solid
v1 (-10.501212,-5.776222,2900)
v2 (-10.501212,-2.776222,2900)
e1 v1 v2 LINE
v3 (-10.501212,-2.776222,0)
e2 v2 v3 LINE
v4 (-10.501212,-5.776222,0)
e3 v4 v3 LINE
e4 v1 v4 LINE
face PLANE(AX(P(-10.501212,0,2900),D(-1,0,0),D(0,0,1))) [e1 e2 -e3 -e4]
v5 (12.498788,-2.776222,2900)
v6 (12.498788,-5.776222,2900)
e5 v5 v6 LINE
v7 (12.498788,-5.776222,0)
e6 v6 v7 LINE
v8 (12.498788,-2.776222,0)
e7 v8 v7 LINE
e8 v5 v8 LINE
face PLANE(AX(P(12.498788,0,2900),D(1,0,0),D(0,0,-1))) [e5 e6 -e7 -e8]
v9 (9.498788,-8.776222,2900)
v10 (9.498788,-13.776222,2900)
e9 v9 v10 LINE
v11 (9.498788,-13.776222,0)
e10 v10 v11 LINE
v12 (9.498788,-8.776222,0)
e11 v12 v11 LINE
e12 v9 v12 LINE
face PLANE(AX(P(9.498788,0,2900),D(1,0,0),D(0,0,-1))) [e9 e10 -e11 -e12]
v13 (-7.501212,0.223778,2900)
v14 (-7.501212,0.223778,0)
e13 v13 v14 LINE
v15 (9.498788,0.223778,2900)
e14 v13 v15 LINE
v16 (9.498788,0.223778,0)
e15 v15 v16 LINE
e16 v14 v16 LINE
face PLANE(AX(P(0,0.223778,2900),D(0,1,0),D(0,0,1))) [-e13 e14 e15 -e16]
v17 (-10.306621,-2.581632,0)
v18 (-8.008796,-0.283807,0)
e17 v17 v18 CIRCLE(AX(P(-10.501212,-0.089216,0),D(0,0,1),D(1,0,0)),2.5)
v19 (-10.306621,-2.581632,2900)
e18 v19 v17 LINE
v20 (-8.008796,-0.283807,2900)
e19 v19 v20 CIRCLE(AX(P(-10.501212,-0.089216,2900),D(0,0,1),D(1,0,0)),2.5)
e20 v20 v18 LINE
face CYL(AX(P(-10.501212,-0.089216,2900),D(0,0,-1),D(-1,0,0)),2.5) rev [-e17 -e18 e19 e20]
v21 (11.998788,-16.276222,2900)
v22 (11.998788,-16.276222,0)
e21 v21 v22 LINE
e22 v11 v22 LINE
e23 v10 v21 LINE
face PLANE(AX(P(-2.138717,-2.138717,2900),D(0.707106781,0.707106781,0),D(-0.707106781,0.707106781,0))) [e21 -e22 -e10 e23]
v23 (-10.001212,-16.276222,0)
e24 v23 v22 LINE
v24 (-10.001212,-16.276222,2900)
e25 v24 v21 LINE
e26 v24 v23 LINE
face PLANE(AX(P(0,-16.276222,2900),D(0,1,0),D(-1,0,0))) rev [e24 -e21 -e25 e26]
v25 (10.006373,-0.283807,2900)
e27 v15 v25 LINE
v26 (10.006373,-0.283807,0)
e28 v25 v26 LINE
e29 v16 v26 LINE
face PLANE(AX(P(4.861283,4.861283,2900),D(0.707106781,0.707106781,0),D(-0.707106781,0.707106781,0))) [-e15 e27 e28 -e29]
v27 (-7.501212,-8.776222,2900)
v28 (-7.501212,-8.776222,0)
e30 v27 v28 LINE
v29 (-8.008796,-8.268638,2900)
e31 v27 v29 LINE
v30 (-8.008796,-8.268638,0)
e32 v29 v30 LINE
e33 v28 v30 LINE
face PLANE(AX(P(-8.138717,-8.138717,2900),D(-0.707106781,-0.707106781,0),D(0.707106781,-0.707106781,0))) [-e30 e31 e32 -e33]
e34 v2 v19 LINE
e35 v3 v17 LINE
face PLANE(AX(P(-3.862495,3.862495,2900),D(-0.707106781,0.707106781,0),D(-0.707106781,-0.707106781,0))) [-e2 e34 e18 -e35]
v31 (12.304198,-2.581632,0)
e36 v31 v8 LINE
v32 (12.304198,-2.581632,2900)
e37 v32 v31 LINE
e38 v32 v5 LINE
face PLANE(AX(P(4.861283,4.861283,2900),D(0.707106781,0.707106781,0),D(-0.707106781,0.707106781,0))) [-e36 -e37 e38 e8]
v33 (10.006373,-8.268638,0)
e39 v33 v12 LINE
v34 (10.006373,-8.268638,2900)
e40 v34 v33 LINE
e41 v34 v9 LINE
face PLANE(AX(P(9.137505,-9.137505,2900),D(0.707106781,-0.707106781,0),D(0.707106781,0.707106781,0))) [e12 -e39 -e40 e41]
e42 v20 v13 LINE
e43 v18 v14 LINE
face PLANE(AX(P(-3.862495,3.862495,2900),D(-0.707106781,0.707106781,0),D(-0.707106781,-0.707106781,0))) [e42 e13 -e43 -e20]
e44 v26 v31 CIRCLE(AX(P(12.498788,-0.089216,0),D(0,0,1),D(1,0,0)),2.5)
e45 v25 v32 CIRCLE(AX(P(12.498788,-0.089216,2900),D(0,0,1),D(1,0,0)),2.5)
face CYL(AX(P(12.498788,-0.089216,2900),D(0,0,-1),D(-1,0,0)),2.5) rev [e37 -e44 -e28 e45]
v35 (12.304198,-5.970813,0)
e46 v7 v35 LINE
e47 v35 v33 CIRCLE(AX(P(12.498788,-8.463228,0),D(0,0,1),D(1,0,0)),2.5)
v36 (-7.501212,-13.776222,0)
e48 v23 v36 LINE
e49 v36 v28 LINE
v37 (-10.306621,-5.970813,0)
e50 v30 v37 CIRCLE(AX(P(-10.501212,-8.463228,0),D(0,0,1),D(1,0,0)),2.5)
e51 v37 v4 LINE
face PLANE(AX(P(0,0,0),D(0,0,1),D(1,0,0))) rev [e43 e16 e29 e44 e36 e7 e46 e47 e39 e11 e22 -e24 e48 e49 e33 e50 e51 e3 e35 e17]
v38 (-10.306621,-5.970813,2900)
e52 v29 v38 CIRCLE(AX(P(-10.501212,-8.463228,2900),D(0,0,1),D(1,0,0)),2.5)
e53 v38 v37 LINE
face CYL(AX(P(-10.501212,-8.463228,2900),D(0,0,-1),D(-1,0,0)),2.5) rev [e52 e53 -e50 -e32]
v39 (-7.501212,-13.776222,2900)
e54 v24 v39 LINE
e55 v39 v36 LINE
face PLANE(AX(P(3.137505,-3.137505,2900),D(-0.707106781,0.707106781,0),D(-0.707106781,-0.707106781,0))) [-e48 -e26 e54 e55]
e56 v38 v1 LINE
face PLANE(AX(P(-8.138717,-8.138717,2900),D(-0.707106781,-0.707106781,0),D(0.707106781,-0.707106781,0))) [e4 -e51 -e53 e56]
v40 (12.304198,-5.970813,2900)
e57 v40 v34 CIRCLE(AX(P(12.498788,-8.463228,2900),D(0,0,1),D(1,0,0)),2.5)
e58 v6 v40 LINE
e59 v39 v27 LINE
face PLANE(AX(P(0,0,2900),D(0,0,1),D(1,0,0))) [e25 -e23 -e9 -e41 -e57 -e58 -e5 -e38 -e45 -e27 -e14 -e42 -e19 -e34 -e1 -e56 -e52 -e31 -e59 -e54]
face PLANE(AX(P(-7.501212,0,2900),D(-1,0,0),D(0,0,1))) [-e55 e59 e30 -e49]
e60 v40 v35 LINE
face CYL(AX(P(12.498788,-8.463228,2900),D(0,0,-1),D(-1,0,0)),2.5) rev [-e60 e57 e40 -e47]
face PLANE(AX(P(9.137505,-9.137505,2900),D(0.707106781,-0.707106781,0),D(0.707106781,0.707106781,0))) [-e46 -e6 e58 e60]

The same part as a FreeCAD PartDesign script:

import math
import FreeCAD as App
import Part
import Sketcher
Q = App.Units.Quantity

doc = App.newDocument("Part")
body = doc.addObject("PartDesign::Body", "Body")

# Sketch on XY plane
sketch1 = doc.addObject("Sketcher::SketchObject", "Sketch")
body.addObject(sketch1)
sketch1.AttachmentSupport = (doc.XY_Plane, [""])
sketch1.MapMode = "FlatFace"
sketch1.addGeometry([
    Part.ArcOfCircle(Part.Circle(App.Vector(12.498788, -8.463228, 0), App.Vector(0, 0, 1), 2.5), math.radians(94.464198), math.radians(175.535802)),  # 0
    Part.LineSegment(App.Vector(12.304198, -5.970813, 0), App.Vector(12.498788, -5.776222, 0)),  # 1
    Part.LineSegment(App.Vector(12.498788, -5.776222, 0), App.Vector(12.498788, -2.776222, 0)),  # 2
    Part.LineSegment(App.Vector(12.498788, -2.776222, 0), App.Vector(12.304198, -2.581632, 0)),  # 3
    Part.ArcOfCircle(Part.Circle(App.Vector(12.498788, -0.089216, 0), App.Vector(0, 0, 1), 2.5), math.radians(-175.535802), math.radians(-94.464198)),  # 4
    Part.LineSegment(App.Vector(10.006373, -0.283807, 0), App.Vector(9.498788, 0.223778, 0)),  # 5
    Part.LineSegment(App.Vector(9.498788, 0.223778, 0), App.Vector(-7.501212, 0.223778, 0)),  # 6
    Part.LineSegment(App.Vector(-7.501212, 0.223778, 0), App.Vector(-8.008796, -0.283807, 0)),  # 7
    Part.ArcOfCircle(Part.Circle(App.Vector(-10.501212, -0.089216, 0), App.Vector(0, 0, 1), 2.5), math.radians(-85.535802), math.radians(-4.464198)),  # 8
    Part.LineSegment(App.Vector(-10.306621, -2.581632, 0), App.Vector(-10.501212, -2.776222, 0)),  # 9
    Part.LineSegment(App.Vector(-10.501212, -2.776222, 0), App.Vector(-10.501212, -5.776222, 0)),  # 10
    Part.LineSegment(App.Vector(-10.501212, -5.776222, 0), App.Vector(-10.306621, -5.970813, 0)),  # 11
    Part.ArcOfCircle(Part.Circle(App.Vector(-10.501212, -8.463228, 0), App.Vector(0, 0, 1), 2.5), math.radians(4.464198), math.radians(85.535802)),  # 12
    Part.LineSegment(App.Vector(-8.008796, -8.268638, 0), App.Vector(-7.501212, -8.776222, 0)),  # 13
    Part.LineSegment(App.Vector(-7.501212, -8.776222, 0), App.Vector(-7.501212, -13.776222, 0)),  # 14
    Part.LineSegment(App.Vector(-7.501212, -13.776222, 0), App.Vector(-10.001212, -16.276222, 0)),  # 15
    Part.LineSegment(App.Vector(-10.001212, -16.276222, 0), App.Vector(11.998788, -16.276222, 0)),  # 16
    Part.LineSegment(App.Vector(11.998788, -16.276222, 0), App.Vector(9.498788, -13.776222, 0)),  # 17
    Part.LineSegment(App.Vector(9.498788, -13.776222, 0), App.Vector(9.498788, -8.776222, 0)),  # 18
    Part.LineSegment(App.Vector(9.498788, -8.776222, 0), App.Vector(10.006373, -8.268638, 0)),  # 19
], False)
sketch1.addConstraint([
    Sketcher.Constraint("Coincident", 0, 1, 1, 1),
    Sketcher.Constraint("Coincident", 1, 2, 2, 1),
    Sketcher.Constraint("Coincident", 2, 2, 3, 1),
    Sketcher.Constraint("Coincident", 3, 2, 4, 2),
    Sketcher.Constraint("Coincident", 4, 1, 5, 1),
    Sketcher.Constraint("Coincident", 5, 2, 6, 1),
    Sketcher.Constraint("Coincident", 6, 2, 7, 1),
    Sketcher.Constraint("Coincident", 7, 2, 8, 2),
    Sketcher.Constraint("Coincident", 8, 1, 9, 1),
    Sketcher.Constraint("Coincident", 9, 2, 10, 1),
    Sketcher.Constraint("Coincident", 10, 2, 11, 1),
    Sketcher.Constraint("Coincident", 11, 2, 12, 2),
    Sketcher.Constraint("Coincident", 12, 1, 13, 1),
    Sketcher.Constraint("Coincident", 13, 2, 14, 1),
    Sketcher.Constraint("Coincident", 14, 2, 15, 1),
    Sketcher.Constraint("Coincident", 15, 2, 16, 1),
    Sketcher.Constraint("Coincident", 16, 2, 17, 1),
    Sketcher.Constraint("Coincident", 17, 2, 18, 1),
    Sketcher.Constraint("Coincident", 18, 2, 19, 1),
    Sketcher.Constraint("Coincident", 19, 2, 0, 2),
    Sketcher.Constraint("Vertical", 2),
    Sketcher.Constraint("Horizontal", 6),
    Sketcher.Constraint("Vertical", 10),
    Sketcher.Constraint("Vertical", 14),
    Sketcher.Constraint("Horizontal", 16),
    Sketcher.Constraint("Vertical", 18),
    Sketcher.Constraint("Equal", 0, 4),
    Sketcher.Constraint("Equal", 4, 8),
    Sketcher.Constraint("Equal", 8, 12),
    Sketcher.Constraint("Perpendicular", 1, 3),
    Sketcher.Constraint("Parallel", 3, 5),
    Sketcher.Constraint("Perpendicular", 5, 7),
    Sketcher.Constraint("Parallel", 7, 9),
    Sketcher.Constraint("Perpendicular", 9, 11),
    Sketcher.Constraint("Parallel", 11, 13),
    Sketcher.Constraint("Perpendicular", 13, 15),
    Sketcher.Constraint("Perpendicular", 15, 17),
    Sketcher.Constraint("Perpendicular", 17, 19),
    Sketcher.Constraint("Horizontal", 4, 3, 8, 3),
    Sketcher.Constraint("Horizontal", 0, 3, 12, 3),
    Sketcher.Constraint("Horizontal", 4, 1, 7, 2),
    Sketcher.Constraint("Horizontal", 3, 2, 8, 1),
    Sketcher.Constraint("Horizontal", 2, 2, 9, 2),
    Sketcher.Constraint("Horizontal", 1, 2, 10, 2),
    Sketcher.Constraint("Horizontal", 0, 1, 11, 2),
    Sketcher.Constraint("Horizontal", 14, 2, 17, 2),
    Sketcher.Constraint("Horizontal", 13, 2, 18, 2),
    Sketcher.Constraint("Horizontal", 12, 1, 19, 2),
    Sketcher.Constraint("Vertical", 0, 3, 4, 3),
    Sketcher.Constraint("Vertical", 8, 3, 12, 3),
    Sketcher.Constraint("Vertical", 4, 3, 1, 2),
    Sketcher.Constraint("Vertical", 0, 1, 3, 2),
    Sketcher.Constraint("Vertical", 7, 2, 12, 1),
    Sketcher.Constraint("Vertical", 6, 2, 13, 2),
    Sketcher.Constraint("Radius", 0, Q("2.5 mm")),
    Sketcher.Constraint("DistanceX", 6, 2, 6, 1, Q("17 mm")),
    Sketcher.Constraint("DistanceX", 16, 1, 16, 2, Q("22 mm")),
    Sketcher.Constraint("DistanceY", 2, 1, 2, 2, Q("3 mm")),
    Sketcher.Constraint("DistanceY", 14, 2, 14, 1, Q("5 mm")),
    Sketcher.Constraint("DistanceX", 8, 3, 4, 3, Q("23 mm")),
    Sketcher.Constraint("DistanceY", 2, 2, 5, 2, Q("3 mm")),
    Sketcher.Constraint("DistanceX", -1, 1, 0, 1, Q("12.304198 mm")),
    Sketcher.Constraint("DistanceX", -1, 1, 0, 3, Q("12.498788 mm")),
    Sketcher.Constraint("DistanceY", 3, 2, -1, 1, Q("2.581632 mm")),
])
pad1 = doc.addObject("PartDesign::Pad", "Pad")
body.addObject(pad1)
pad1.Profile = sketch1
pad1.Length = 2900

doc.recompute()
